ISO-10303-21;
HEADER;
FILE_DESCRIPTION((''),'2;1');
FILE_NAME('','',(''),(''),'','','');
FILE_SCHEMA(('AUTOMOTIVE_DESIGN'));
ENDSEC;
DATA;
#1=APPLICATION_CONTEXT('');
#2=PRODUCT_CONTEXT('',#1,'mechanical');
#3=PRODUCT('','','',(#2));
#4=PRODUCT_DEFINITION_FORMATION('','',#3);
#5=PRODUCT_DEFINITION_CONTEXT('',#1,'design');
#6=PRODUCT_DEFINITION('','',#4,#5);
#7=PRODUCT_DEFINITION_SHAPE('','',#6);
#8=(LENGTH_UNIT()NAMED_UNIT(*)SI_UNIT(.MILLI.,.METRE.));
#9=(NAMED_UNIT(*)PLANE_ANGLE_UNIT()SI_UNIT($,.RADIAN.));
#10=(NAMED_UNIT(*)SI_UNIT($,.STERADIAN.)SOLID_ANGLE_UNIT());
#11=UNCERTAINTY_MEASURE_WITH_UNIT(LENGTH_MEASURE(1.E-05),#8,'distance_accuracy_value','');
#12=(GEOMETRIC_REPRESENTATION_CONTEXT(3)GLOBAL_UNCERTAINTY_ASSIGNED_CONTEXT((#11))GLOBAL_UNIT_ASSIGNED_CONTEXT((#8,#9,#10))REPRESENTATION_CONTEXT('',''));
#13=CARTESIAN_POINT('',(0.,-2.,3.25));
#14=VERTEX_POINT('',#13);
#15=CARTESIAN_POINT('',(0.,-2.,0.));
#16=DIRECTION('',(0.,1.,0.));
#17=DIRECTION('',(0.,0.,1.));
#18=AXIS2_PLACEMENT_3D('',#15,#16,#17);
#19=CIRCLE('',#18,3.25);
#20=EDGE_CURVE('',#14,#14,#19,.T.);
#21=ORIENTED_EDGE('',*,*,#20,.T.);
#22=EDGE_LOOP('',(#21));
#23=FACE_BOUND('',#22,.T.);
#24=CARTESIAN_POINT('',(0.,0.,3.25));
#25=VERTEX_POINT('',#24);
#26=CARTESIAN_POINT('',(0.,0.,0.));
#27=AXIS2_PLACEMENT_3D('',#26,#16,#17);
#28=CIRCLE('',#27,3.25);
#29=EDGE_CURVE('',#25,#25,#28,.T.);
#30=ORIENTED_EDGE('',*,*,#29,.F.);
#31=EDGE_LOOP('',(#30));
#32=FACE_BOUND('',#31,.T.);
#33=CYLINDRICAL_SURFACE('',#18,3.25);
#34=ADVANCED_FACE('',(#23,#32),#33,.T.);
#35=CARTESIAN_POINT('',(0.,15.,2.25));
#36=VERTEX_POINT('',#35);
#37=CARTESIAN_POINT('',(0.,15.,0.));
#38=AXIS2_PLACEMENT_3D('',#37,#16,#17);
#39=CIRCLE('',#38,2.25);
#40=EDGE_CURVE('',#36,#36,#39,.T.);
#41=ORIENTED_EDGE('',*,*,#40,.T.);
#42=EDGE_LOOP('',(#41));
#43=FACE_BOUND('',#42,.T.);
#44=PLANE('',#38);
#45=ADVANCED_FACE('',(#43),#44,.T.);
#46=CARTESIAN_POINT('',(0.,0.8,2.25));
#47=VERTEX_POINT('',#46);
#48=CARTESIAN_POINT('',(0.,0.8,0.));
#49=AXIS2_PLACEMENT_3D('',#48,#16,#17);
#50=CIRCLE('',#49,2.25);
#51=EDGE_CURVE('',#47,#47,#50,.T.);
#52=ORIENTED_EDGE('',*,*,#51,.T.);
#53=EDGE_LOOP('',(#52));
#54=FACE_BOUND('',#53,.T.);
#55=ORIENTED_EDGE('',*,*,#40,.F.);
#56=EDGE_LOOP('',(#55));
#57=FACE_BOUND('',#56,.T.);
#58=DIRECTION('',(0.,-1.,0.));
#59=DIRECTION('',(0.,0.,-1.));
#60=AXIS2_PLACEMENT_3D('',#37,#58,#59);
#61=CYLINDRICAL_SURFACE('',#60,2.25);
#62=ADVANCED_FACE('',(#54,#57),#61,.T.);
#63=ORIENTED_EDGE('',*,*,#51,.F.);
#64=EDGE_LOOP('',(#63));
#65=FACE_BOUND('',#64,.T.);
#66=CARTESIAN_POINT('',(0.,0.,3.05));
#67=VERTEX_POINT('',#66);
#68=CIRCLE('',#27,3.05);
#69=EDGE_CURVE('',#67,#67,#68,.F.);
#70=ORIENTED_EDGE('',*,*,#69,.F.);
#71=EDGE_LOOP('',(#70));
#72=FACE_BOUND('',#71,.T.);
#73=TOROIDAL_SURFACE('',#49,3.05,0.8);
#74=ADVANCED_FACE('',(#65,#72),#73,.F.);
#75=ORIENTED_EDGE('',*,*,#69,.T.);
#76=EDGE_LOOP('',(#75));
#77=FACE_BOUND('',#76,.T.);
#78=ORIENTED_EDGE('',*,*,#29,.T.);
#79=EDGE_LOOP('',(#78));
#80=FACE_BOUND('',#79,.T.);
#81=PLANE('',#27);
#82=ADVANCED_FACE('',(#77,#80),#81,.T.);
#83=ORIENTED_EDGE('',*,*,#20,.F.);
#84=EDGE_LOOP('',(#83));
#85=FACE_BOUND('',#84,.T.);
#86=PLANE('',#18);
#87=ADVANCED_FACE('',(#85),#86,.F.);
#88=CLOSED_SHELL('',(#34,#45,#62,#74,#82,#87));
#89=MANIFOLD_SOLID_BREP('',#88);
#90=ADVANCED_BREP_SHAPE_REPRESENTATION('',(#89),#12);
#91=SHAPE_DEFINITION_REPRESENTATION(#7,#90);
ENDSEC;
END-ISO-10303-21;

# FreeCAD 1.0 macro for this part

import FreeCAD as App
import Part
import Sketcher

V = App.Vector


def edges_at(feature, points):
    """Names of the edges that pass closest to the given points."""
    edges = feature.Shape.Edges
    near = lambda p: min(range(len(edges)), key=lambda i: edges[i].distToShape(Part.Vertex(*p))[0])
    return sorted({f"Edge{near(p) + 1}" for p in points})

doc = App.newDocument("Part")
body = doc.addObject("PartDesign::Body", "Body")

sketch1 = body.newObject("Sketcher::SketchObject", "Sketch")
sketch1.AttachmentSupport = (doc.getObject("XZ_Plane"), [""])
sketch1.MapMode = "FlatFace"
sketch1.addGeometry(Part.Circle(V(0, 0, 0), V(0, 0, 1), 2.25), False)
sketch1.addConstraint([
    Sketcher.Constraint("Coincident", 0, 3, -1, 1),
    Sketcher.Constraint("Diameter", 0, 4.5),
])
pad1 = body.newObject("PartDesign::Pad", "Pad")
pad1.Profile = sketch1
pad1.Length = 15
pad1.Reversed = True

sketch2 = body.newObject("Sketcher::SketchObject", "Sketch001")
sketch2.AttachmentSupport = (doc.getObject("XZ_Plane"), [""])
sketch2.MapMode = "FlatFace"
sketch2.AttachmentOffset = App.Placement(V(0, 0, 2), App.Rotation())
sketch2.addGeometry(Part.Circle(V(0, 0, 0), V(0, 0, 1), 3.25), False)
sketch2.addConstraint([
    Sketcher.Constraint("Coincident", 0, 3, -1, 1),
    Sketcher.Constraint("Diameter", 0, 6.5),
])
pad2 = body.newObject("PartDesign::Pad", "Pad001")
pad2.Profile = sketch2
pad2.Length = 2
pad2.Reversed = True
doc.recompute()

fillet = body.newObject("PartDesign::Fillet", "Fillet")
fillet.Base = (pad2, edges_at(pad2, [(0, 0, -2.25)]))
fillet.Radius = 0.8

doc.recompute()
